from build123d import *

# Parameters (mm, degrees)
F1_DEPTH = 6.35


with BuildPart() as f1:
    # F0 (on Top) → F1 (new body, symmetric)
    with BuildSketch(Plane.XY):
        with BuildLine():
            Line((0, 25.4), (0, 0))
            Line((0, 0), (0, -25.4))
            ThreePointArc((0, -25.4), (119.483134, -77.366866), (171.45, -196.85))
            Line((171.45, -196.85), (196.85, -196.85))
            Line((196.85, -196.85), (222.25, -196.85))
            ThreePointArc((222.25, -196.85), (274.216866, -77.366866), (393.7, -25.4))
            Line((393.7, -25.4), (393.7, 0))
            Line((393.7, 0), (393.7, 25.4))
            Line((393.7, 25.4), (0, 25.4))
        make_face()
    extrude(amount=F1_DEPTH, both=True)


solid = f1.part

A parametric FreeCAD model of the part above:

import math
import FreeCAD as App
import Part
import Sketcher

V = App.Vector
Q = App.Units.Quantity

doc = App.newDocument("Part")
params = doc.addObject("Spreadsheet::Sheet", "Params")
for row, (alias, value) in enumerate([
    ("sketch1_radius", "6.9999999 in"),
    ("sketch1_width", "2 in"),
    ("sketch1_width2", "15.5 in"),
    ("pad1_length", "0.5 in"),
], start=1):
    params.set(f"A{row}", alias)
    params.set(f"B{row}", "=" + value)
    params.setAlias(f"B{row}", alias)

body = doc.addObject("PartDesign::Body", "Body")

# Sketch on XY plane
sketch1 = body.newObject("Sketcher::SketchObject", "Sketch")
sketch1.AttachmentSupport = (doc.getObject("XY_Plane"), [""])
sketch1.MapMode = "FlatFace"
sketch1.addGeometry(Part.LineSegment(V(0, 25, 0), V(0, -25, 0)), False)
sketch1.addGeometry(Part.ArcOfCircle(Part.Circle(V(-6, -203, 0), V(0, 0, 1), 178), math.radians(2), math.radians(88)), False)
sketch1.addGeometry(Part.LineSegment(V(171, -197, 0), V(222, -197, 0)), False)
sketch1.addGeometry(Part.ArcOfCircle(Part.Circle(V(400, -203, 0), V(0, 0, 1), 178), math.radians(92), math.radians(178)), False)
sketch1.addGeometry(Part.LineSegment(V(394, -25, 0), V(394, 25, 0)), False)
sketch1.addGeometry(Part.LineSegment(V(394, 25, 0), V(0, 25, 0)), False)
sketch1.addConstraint(Sketcher.Constraint("Coincident", 0, 2, 1, 2))
sketch1.addConstraint(Sketcher.Constraint("Coincident", 1, 1, 2, 1))
sketch1.addConstraint(Sketcher.Constraint("Coincident", 2, 2, 3, 2))
sketch1.addConstraint(Sketcher.Constraint("Coincident", 3, 1, 4, 1))
sketch1.addConstraint(Sketcher.Constraint("Coincident", 4, 2, 5, 1))
sketch1.addConstraint(Sketcher.Constraint("Coincident", 5, 2, 0, 1))
sketch1.addConstraint(Sketcher.Constraint("Vertical", 0))
sketch1.addConstraint(Sketcher.Constraint("Horizontal", 2))
sketch1.addConstraint(Sketcher.Constraint("Vertical", 4))
sketch1.addConstraint(Sketcher.Constraint("Horizontal", 5))
sketch1.addConstraint(Sketcher.Constraint("Equal", 1, 3))
sketch1.addConstraint(Sketcher.Constraint("Symmetric", 0, 2, 5, 2, -1, 1))
sketch1.addConstraint(Sketcher.Constraint("Horizontal", 1, 3, 3, 3))
sketch1.addConstraint(Sketcher.Constraint("Horizontal", 0, 2, 3, 1))
sketch1.addConstraint(Sketcher.Constraint("Equal", 2, 0))
sketch1.addConstraint(Sketcher.Constraint("Radius", 1, Q("6.9999999 in")))
sketch1.addConstraint(Sketcher.Constraint("DistanceX", 2, 1, 2, 2, Q("2 in")))
sketch1.addConstraint(Sketcher.Constraint("DistanceX", 5, 2, 5, 1, Q("15.5 in")))
sketch1.addConstraint(Sketcher.Constraint("DistanceY", 1, 1, -1, 1, Q("7.75 in")))
sketch1.setExpression("Constraints[15]", "Params.sketch1_radius")
sketch1.setExpression("Constraints[16]", "Params.sketch1_width")
sketch1.setExpression("Constraints[17]", "Params.sketch1_width2")
pad1 = body.newObject("PartDesign::Pad", "Pad")
pad1.Profile = sketch1
pad1.setExpression("Length", "Params.pad1_length")
pad1.Midplane = True

doc.recompute()
